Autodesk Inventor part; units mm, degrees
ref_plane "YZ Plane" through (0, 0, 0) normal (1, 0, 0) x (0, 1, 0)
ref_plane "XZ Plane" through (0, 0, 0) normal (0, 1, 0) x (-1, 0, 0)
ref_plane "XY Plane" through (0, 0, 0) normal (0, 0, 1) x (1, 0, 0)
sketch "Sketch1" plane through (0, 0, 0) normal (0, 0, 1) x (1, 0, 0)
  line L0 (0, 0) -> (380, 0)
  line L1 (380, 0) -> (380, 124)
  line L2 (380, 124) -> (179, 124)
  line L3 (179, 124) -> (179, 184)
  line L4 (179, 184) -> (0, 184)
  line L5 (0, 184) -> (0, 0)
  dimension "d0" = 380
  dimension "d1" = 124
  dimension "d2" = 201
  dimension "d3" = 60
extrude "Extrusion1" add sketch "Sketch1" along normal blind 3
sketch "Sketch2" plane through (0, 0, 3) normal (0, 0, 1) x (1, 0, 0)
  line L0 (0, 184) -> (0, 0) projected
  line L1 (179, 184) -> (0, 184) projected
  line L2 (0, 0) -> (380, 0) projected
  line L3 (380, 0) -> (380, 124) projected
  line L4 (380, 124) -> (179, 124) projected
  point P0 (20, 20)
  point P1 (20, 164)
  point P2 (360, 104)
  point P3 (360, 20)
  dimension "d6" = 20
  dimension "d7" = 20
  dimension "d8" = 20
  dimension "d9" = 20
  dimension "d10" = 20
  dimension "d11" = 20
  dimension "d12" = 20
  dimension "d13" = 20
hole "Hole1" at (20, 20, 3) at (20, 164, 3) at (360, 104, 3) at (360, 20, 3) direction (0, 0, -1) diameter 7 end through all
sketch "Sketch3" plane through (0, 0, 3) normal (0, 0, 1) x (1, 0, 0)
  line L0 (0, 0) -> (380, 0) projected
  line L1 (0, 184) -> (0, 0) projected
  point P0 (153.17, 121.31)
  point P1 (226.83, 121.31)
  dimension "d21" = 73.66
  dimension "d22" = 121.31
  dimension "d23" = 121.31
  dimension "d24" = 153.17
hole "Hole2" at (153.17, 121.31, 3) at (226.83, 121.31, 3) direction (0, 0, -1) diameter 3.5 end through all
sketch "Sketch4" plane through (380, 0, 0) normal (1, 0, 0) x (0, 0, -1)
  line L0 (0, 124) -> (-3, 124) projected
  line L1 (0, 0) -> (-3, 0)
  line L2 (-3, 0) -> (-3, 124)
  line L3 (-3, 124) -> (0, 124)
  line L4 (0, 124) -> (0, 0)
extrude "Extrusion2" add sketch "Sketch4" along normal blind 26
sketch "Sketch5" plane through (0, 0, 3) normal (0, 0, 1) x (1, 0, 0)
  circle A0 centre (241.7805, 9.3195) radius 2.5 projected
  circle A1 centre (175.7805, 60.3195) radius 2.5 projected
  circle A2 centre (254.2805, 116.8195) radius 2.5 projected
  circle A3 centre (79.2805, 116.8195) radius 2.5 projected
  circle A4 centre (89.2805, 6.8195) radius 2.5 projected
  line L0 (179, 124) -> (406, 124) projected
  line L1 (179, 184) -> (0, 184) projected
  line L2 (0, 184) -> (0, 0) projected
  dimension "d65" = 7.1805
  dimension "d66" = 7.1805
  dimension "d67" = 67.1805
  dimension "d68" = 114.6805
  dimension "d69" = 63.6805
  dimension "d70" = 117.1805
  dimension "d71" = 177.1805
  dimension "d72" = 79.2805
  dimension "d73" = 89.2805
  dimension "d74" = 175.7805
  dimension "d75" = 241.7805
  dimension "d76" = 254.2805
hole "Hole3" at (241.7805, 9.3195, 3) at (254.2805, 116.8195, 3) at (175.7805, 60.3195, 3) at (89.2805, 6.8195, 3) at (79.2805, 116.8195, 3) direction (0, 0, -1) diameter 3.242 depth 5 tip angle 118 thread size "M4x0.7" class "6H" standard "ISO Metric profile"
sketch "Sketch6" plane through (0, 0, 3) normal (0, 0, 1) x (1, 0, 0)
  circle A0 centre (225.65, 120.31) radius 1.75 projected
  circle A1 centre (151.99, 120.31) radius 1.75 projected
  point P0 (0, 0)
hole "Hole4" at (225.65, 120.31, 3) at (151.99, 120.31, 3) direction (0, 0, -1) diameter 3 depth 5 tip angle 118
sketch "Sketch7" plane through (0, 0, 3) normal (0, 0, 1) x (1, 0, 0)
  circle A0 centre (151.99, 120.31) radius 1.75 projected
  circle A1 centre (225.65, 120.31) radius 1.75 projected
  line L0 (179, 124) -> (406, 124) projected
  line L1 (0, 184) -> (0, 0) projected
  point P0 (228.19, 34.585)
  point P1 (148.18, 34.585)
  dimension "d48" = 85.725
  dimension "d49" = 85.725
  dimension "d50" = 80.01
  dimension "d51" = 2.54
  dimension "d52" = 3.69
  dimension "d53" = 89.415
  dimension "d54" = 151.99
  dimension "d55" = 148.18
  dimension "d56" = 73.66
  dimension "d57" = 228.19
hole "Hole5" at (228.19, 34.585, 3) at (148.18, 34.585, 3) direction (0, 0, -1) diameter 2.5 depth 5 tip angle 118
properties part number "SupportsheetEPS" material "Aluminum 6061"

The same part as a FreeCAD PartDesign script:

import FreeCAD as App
import Part
import Sketcher
from FreeCAD import Vector
Q = App.Units.Quantity

doc = App.newDocument("Part")
body = doc.addObject("PartDesign::Body", "Body")

sketch1 = doc.addObject("Sketcher::SketchObject", "Sketch")
body.addObject(sketch1)
sketch1.AttachmentSupport = (doc.XY_Plane, [""])
sketch1.MapMode = "FlatFace"
sketch1.addGeometry(Part.LineSegment(Vector(0, 184, 0), Vector(0, 0, 0)), False)
sketch1.addGeometry(Part.LineSegment(Vector(0, 0, 0), Vector(380, 0, 0)), False)
sketch1.addGeometry(Part.LineSegment(Vector(380, 0, 0), Vector(380, 124, 0)), False)
sketch1.addGeometry(Part.LineSegment(Vector(380, 124, 0), Vector(179, 124, 0)), False)
sketch1.addGeometry(Part.LineSegment(Vector(179, 124, 0), Vector(179, 184, 0)), False)
sketch1.addGeometry(Part.LineSegment(Vector(179, 184, 0), Vector(0, 184, 0)), False)
sketch1.addConstraint(Sketcher.Constraint("Coincident", 0, 2, 1, 1))
sketch1.addConstraint(Sketcher.Constraint("Coincident", 1, 2, 2, 1))
sketch1.addConstraint(Sketcher.Constraint("Coincident", 2, 2, 3, 1))
sketch1.addConstraint(Sketcher.Constraint("Coincident", 3, 2, 4, 1))
sketch1.addConstraint(Sketcher.Constraint("Coincident", 4, 2, 5, 1))
sketch1.addConstraint(Sketcher.Constraint("Coincident", 5, 2, 0, 1))
sketch1.addConstraint(Sketcher.Constraint("Vertical", 0))
sketch1.addConstraint(Sketcher.Constraint("Horizontal", 1))
sketch1.addConstraint(Sketcher.Constraint("Vertical", 2))
sketch1.addConstraint(Sketcher.Constraint("Horizontal", 3))
sketch1.addConstraint(Sketcher.Constraint("Vertical", 4))
sketch1.addConstraint(Sketcher.Constraint("Horizontal", 5))
sketch1.addConstraint(Sketcher.Constraint("Coincident", 0, 2, -1, 1))
sketch1.addConstraint(Sketcher.Constraint("DistanceX", 1, 1, 1, 2, Q("380 mm")))
sketch1.addConstraint(Sketcher.Constraint("DistanceX", 3, 2, 3, 1, Q("201 mm")))
sketch1.addConstraint(Sketcher.Constraint("DistanceY", 2, 1, 2, 2, Q("124 mm")))
sketch1.addConstraint(Sketcher.Constraint("DistanceY", 4, 1, 4, 2, Q("60 mm")))
pad1 = doc.addObject("PartDesign::Pad", "Pad")
body.addObject(pad1)
pad1.Profile = sketch1
pad1.Length = 3

sketch2 = doc.addObject("Sketcher::SketchObject", "Sketch001")
body.addObject(sketch2)
sketch2.AttachmentSupport = (doc.XY_Plane, [""])
sketch2.MapMode = "FlatFace"
sketch2.AttachmentOffset = App.Placement(Vector(0, 0, 3), App.Rotation())
sketch2.addGeometry(Part.Circle(Vector(20, 20, 0), Vector(0, 0, 1), 3.5), False)
sketch2.addGeometry(Part.Circle(Vector(20, 164, 0), Vector(0, 0, 1), 3.5), False)
sketch2.addGeometry(Part.Circle(Vector(360, 104, 0), Vector(0, 0, 1), 3.5), False)
sketch2.addGeometry(Part.Circle(Vector(360, 20, 0), Vector(0, 0, 1), 3.5), False)
sketch2.addConstraint(Sketcher.Constraint("Equal", 0, 1))
sketch2.addConstraint(Sketcher.Constraint("Equal", 1, 2))
sketch2.addConstraint(Sketcher.Constraint("Equal", 2, 3))
sketch2.addConstraint(Sketcher.Constraint("Horizontal", 0, 3, 3, 3))
sketch2.addConstraint(Sketcher.Constraint("Vertical", 0, 3, 1, 3))
sketch2.addConstraint(Sketcher.Constraint("Vertical", 2, 3, 3, 3))
sketch2.addConstraint(Sketcher.Constraint("Diameter", 0, Q("7 mm")))
sketch2.addConstraint(Sketcher.Constraint("DistanceX", -1, 1, 0, 3, Q("20 mm")))
sketch2.addConstraint(Sketcher.Constraint("DistanceY", -1, 1, 0, 3, Q("20 mm")))
sketch2.addConstraint(Sketcher.Constraint("DistanceY", -1, 1, 1, 3, Q("164 mm")))
sketch2.addConstraint(Sketcher.Constraint("DistanceX", -1, 1, 2, 3, Q("360 mm")))
sketch2.addConstraint(Sketcher.Constraint("DistanceY", -1, 1, 2, 3, Q("104 mm")))
doc.recompute()
hole = doc.addObject("PartDesign::Hole", "Hole")
body.addObject(hole)
hole.Profile = sketch2
hole.ThreadType = "None"
hole.Diameter = 7
hole.DepthType = "ThroughAll"

sketch3 = doc.addObject("Sketcher::SketchObject", "Sketch002")
body.addObject(sketch3)
sketch3.AttachmentSupport = (doc.XY_Plane, [""])
sketch3.MapMode = "FlatFace"
sketch3.AttachmentOffset = App.Placement(Vector(0, 0, 3), App.Rotation())
sketch3.addGeometry(Part.Circle(Vector(153.2, 121.3, 0), Vector(0, 0, 1), 1.8), False)
sketch3.addGeometry(Part.Circle(Vector(226.8, 121.3, 0), Vector(0, 0, 1), 1.8), False)
sketch3.addConstraint(Sketcher.Constraint("Equal", 0, 1))
sketch3.addConstraint(Sketcher.Constraint("Horizontal", 0, 3, 1, 3))
sketch3.addConstraint(Sketcher.Constraint("Diameter", 0, Q("3.5 mm")))
sketch3.addConstraint(Sketcher.Constraint("DistanceX", -1, 1, 0, 3, Q("153.17 mm")))
sketch3.addConstraint(Sketcher.Constraint("DistanceY", -1, 1, 0, 3, Q("121.31 mm")))
sketch3.addConstraint(Sketcher.Constraint("DistanceX", -1, 1, 1, 3, Q("226.83 mm")))
doc.recompute()
hole2 = doc.addObject("PartDesign::Hole", "Hole001")
body.addObject(hole2)
hole2.Profile = sketch3
hole2.ThreadType = "None"
hole2.Diameter = 3.5
hole2.DepthType = "ThroughAll"

sketch4 = doc.addObject("Sketcher::SketchObject", "Sketch003")
body.addObject(sketch4)
sketch4.AttachmentSupport = (doc.YZ_Plane, [""])
sketch4.MapMode = "FlatFace"
sketch4.AttachmentOffset = App.Placement(Vector(0, 0, 380), App.Rotation())
sketch4.addGeometry(Part.LineSegment(Vector(0, 0, 0), Vector(124, 0, 0)), False)
sketch4.addGeometry(Part.LineSegment(Vector(124, 0, 0), Vector(124, 3, 0)), False)
sketch4.addGeometry(Part.LineSegment(Vector(124, 3, 0), Vector(0, 3, 0)), False)
sketch4.addGeometry(Part.LineSegment(Vector(0, 3, 0), Vector(0, 0, 0)), False)
sketch4.addConstraint(Sketcher.Constraint("Coincident", 0, 2, 1, 1))
sketch4.addConstraint(Sketcher.Constraint("Coincident", 1, 2, 2, 1))
sketch4.addConstraint(Sketcher.Constraint("Coincident", 2, 2, 3, 1))
sketch4.addConstraint(Sketcher.Constraint("Coincident", 3, 2, 0, 1))
sketch4.addConstraint(Sketcher.Constraint("Horizontal", 0))
sketch4.addConstraint(Sketcher.Constraint("Vertical", 1))
sketch4.addConstraint(Sketcher.Constraint("Horizontal", 2))
sketch4.addConstraint(Sketcher.Constraint("Vertical", 3))
sketch4.addConstraint(Sketcher.Constraint("Coincident", 3, 2, -1, 1))
sketch4.addConstraint(Sketcher.Constraint("DistanceX", 0, 1, 0, 2, Q("124 mm")))
sketch4.addConstraint(Sketcher.Constraint("DistanceY", 1, 1, 1, 2, Q("3 mm")))
pad2 = doc.addObject("PartDesign::Pad", "Pad001")
body.addObject(pad2)
pad2.Profile = sketch4
pad2.Length = 26

sketch5 = doc.addObject("Sketcher::SketchObject", "Sketch004")
body.addObject(sketch5)
sketch5.AttachmentSupport = (doc.XY_Plane, [""])
sketch5.MapMode = "FlatFace"
sketch5.AttachmentOffset = App.Placement(Vector(0, 0, 3), App.Rotation())
sketch5.addGeometry(Part.Circle(Vector(241.8, 9.3, 0), Vector(0, 0, 1), 1.6), False)
sketch5.addGeometry(Part.Circle(Vector(254.3, 116.8, 0), Vector(0, 0, 1), 1.6), False)
sketch5.addGeometry(Part.Circle(Vector(175.8, 60.3, 0), Vector(0, 0, 1), 1.6), False)
sketch5.addGeometry(Part.Circle(Vector(89.3, 6.8, 0), Vector(0, 0, 1), 1.6), False)
sketch5.addGeometry(Part.Circle(Vector(79.3, 116.8, 0), Vector(0, 0, 1), 1.6), False)
sketch5.addConstraint(Sketcher.Constraint("Equal", 0, 1))
sketch5.addConstraint(Sketcher.Constraint("Equal", 1, 2))
sketch5.addConstraint(Sketcher.Constraint("Equal", 2, 3))
sketch5.addConstraint(Sketcher.Constraint("Equal", 3, 4))
sketch5.addConstraint(Sketcher.Constraint("Horizontal", 1, 3, 4, 3))
sketch5.addConstraint(Sketcher.Constraint("Diameter", 0, Q("3.242 mm")))
sketch5.addConstraint(Sketcher.Constraint("DistanceX", 2, 3, 0, 3, Q("66 mm")))
sketch5.addConstraint(Sketcher.Constraint("DistanceY", 0, 3, 2, 3, Q("51 mm")))
sketch5.addConstraint(Sketcher.Constraint("DistanceX", 3, 3, 1, 3, Q("165 mm")))
sketch5.addConstraint(Sketcher.Constraint("DistanceY", 3, 3, 1, 3, Q("110 mm")))
sketch5.addConstraint(Sketcher.Constraint("DistanceX", 4, 3, 3, 3, Q("10 mm")))
sketch5.addConstraint(Sketcher.Constraint("DistanceX", 0, 3, 1, 3, Q("12.5 mm")))
sketch5.addConstraint(Sketcher.Constraint("DistanceY", 0, 3, 1, 3, Q("107.5 mm")))
sketch5.addConstraint(Sketcher.Constraint("DistanceX", -1, 1, 0, 3, Q("241.7805 mm")))
sketch5.addConstraint(Sketcher.Constraint("DistanceY", -1, 1, 0, 3, Q("9.3195 mm")))
doc.recompute()
hole3 = doc.addObject("PartDesign::Hole", "Hole002")
body.addObject(hole3)
hole3.Profile = sketch5
hole3.ThreadType = "None"
hole3.Diameter = 3.242
hole3.DepthType = "Dimension"
hole3.Depth = 5
hole3.DrillPoint = "Angled"
hole3.DrillPointAngle = 118

sketch6 = doc.addObject("Sketcher::SketchObject", "Sketch005")
body.addObject(sketch6)
sketch6.AttachmentSupport = (doc.XY_Plane, [""])
sketch6.MapMode = "FlatFace"
sketch6.AttachmentOffset = App.Placement(Vector(0, 0, 3), App.Rotation())
sketch6.addGeometry(Part.Circle(Vector(225.7, 120.3, 0), Vector(0, 0, 1), 1.5), False)
sketch6.addGeometry(Part.Circle(Vector(152, 120.3, 0), Vector(0, 0, 1), 1.5), False)
sketch6.addConstraint(Sketcher.Constraint("Equal", 0, 1))
sketch6.addConstraint(Sketcher.Constraint("Horizontal", 0, 3, 1, 3))
sketch6.addConstraint(Sketcher.Constraint("Diameter", 0, Q("3 mm")))
sketch6.addConstraint(Sketcher.Constraint("DistanceX", -1, 1, 0, 3, Q("225.65 mm")))
sketch6.addConstraint(Sketcher.Constraint("DistanceY", -1, 1, 0, 3, Q("120.31 mm")))
sketch6.addConstraint(Sketcher.Constraint("DistanceX", -1, 1, 1, 3, Q("151.99 mm")))
doc.recompute()
hole4 = doc.addObject("PartDesign::Hole", "Hole003")
body.addObject(hole4)
hole4.Profile = sketch6
hole4.ThreadType = "None"
hole4.Diameter = 3
hole4.DepthType = "Dimension"
hole4.Depth = 5
hole4.DrillPoint = "Angled"
hole4.DrillPointAngle = 118

sketch7 = doc.addObject("Sketcher::SketchObject", "Sketch006")
body.addObject(sketch7)
sketch7.AttachmentSupport = (doc.XY_Plane, [""])
sketch7.MapMode = "FlatFace"
sketch7.AttachmentOffset = App.Placement(Vector(0, 0, 3), App.Rotation())
sketch7.addGeometry(Part.Circle(Vector(228.2, 34.6, 0), Vector(0, 0, 1), 1.2), False)
sketch7.addGeometry(Part.Circle(Vector(148.2, 34.6, 0), Vector(0, 0, 1), 1.2), False)
sketch7.addConstraint(Sketcher.Constraint("Equal", 0, 1))
sketch7.addConstraint(Sketcher.Constraint("Horizontal", 0, 3, 1, 3))
sketch7.addConstraint(Sketcher.Constraint("Diameter", 0, Q("2.5 mm")))
sketch7.addConstraint(Sketcher.Constraint("DistanceX", -1, 1, 0, 3, Q("228.19 mm")))
sketch7.addConstraint(Sketcher.Constraint("DistanceX", -1, 1, 1, 3, Q("148.18 mm")))
sketch7.addConstraint(Sketcher.Constraint("DistanceY", -1, 1, 0, 3, Q("34.585 mm")))
doc.recompute()
hole5 = doc.addObject("PartDesign::Hole", "Hole004")
body.addObject(hole5)
hole5.Profile = sketch7
hole5.ThreadType = "None"
hole5.Diameter = 2.5
hole5.DepthType = "Dimension"
hole5.Depth = 5
hole5.DrillPoint = "Angled"
hole5.DrillPointAngle = 118

doc.recompute()
